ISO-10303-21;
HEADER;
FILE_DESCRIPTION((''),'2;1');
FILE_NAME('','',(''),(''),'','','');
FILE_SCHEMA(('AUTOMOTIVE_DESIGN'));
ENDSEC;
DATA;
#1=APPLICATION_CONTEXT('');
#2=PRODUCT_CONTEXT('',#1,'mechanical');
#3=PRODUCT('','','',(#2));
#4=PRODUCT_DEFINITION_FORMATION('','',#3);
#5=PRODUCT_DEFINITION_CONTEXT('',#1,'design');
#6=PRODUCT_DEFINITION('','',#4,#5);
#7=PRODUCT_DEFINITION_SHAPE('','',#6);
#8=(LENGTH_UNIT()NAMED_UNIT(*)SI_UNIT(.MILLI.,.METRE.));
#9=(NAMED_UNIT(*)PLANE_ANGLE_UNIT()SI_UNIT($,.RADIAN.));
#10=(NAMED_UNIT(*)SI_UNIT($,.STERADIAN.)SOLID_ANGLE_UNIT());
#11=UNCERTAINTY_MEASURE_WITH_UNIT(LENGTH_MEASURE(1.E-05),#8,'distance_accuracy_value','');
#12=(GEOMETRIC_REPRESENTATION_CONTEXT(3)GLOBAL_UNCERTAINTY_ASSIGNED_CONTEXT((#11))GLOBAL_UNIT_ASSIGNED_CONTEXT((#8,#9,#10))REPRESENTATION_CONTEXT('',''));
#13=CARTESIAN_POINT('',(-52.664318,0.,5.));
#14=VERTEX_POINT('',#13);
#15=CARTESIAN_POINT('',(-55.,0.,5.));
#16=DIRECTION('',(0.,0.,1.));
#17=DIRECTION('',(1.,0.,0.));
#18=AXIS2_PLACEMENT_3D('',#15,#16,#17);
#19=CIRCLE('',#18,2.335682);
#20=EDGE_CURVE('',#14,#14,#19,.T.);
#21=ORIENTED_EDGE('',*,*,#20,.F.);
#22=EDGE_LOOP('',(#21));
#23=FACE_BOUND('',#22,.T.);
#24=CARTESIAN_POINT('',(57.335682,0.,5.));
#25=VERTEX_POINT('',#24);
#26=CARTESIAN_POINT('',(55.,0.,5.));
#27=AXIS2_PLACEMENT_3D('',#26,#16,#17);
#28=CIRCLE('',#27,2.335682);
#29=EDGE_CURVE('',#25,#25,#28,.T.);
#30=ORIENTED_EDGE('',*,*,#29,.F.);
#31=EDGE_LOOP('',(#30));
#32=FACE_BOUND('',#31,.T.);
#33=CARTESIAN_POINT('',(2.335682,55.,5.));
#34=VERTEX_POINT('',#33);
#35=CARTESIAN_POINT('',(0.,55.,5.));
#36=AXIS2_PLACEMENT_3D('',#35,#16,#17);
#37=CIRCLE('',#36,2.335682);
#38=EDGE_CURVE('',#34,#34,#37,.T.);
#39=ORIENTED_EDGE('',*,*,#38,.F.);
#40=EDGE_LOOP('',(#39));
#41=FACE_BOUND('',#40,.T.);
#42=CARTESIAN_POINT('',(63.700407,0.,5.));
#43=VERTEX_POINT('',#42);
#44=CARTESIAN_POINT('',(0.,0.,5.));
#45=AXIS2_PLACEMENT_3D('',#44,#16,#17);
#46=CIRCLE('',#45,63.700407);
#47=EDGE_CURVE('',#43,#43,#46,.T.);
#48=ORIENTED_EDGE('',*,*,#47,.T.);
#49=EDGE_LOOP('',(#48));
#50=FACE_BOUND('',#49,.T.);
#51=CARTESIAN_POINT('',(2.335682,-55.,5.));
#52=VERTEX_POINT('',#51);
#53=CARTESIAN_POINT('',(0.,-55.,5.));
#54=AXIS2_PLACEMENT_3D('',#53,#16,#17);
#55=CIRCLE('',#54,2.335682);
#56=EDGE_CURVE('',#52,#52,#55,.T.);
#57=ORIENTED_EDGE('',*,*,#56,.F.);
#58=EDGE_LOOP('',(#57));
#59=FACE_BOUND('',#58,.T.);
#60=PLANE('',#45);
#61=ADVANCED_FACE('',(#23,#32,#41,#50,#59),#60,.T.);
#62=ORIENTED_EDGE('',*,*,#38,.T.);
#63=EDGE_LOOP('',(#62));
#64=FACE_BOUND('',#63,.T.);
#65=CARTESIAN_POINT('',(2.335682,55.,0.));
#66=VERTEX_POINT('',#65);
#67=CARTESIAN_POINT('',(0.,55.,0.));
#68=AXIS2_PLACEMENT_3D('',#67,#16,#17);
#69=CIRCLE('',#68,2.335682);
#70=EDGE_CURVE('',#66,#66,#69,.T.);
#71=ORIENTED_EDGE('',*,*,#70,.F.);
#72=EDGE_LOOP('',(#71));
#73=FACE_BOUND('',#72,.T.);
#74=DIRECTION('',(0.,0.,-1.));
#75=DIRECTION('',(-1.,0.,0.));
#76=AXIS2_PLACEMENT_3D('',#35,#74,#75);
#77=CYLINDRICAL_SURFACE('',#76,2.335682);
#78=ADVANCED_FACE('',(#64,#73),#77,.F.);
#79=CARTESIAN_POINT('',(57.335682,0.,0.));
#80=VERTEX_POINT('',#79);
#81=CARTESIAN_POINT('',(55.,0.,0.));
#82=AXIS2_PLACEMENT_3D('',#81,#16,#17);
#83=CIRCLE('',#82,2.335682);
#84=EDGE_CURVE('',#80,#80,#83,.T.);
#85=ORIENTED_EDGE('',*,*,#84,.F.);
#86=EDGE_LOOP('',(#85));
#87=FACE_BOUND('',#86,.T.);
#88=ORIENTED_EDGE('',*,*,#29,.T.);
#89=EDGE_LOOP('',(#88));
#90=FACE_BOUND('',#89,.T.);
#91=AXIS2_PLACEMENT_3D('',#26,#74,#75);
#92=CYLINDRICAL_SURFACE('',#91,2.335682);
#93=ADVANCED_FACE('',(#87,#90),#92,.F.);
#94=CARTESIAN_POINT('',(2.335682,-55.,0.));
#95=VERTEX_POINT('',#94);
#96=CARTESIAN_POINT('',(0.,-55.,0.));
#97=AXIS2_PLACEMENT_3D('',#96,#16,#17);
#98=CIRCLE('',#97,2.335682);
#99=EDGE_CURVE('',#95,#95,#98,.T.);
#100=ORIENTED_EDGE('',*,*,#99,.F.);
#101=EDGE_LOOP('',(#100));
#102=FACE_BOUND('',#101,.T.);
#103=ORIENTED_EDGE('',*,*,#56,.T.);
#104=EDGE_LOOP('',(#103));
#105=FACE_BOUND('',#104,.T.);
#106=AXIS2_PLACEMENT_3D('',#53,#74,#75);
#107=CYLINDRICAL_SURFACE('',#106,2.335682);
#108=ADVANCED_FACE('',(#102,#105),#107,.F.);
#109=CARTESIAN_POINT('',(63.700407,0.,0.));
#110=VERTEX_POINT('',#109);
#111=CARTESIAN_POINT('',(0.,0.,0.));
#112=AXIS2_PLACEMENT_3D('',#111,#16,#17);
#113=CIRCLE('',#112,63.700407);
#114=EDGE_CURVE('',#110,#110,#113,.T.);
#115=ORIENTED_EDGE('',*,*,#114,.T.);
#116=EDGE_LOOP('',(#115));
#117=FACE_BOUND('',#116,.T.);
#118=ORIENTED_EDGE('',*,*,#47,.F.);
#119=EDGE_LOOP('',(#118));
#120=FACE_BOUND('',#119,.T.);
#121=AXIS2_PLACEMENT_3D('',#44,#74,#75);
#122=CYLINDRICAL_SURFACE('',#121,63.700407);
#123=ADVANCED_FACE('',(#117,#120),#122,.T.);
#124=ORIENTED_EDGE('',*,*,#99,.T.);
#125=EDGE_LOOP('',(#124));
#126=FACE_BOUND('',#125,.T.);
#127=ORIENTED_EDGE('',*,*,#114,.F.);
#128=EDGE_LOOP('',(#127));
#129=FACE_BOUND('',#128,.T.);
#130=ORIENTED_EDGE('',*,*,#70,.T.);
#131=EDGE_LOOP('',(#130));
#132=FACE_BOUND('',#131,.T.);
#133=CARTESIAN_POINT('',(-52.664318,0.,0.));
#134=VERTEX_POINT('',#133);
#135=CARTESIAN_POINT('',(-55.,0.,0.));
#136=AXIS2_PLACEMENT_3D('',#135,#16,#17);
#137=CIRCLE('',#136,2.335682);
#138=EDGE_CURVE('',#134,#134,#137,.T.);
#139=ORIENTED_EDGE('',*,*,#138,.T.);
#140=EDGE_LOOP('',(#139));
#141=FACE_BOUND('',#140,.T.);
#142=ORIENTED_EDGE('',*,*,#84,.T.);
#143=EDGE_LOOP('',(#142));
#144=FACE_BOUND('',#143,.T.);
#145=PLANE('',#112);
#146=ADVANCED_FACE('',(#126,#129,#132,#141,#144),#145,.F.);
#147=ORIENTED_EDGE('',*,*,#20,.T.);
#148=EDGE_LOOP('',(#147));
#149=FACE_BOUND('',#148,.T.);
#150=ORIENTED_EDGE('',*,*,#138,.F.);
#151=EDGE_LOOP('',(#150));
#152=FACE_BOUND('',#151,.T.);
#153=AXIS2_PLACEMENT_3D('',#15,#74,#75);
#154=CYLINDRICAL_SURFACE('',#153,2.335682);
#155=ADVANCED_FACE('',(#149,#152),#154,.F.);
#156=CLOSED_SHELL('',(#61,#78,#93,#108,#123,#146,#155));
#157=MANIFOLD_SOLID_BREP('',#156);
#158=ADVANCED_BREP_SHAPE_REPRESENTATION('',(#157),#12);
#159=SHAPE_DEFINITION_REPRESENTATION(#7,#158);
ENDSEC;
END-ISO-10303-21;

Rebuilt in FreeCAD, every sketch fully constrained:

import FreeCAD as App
import Part
import Sketcher
from FreeCAD import Vector
Q = App.Units.Quantity

doc = App.newDocument("Part")
params = doc.addObject("Spreadsheet::Sheet", "Params")
for row, (alias, value) in enumerate([
    ("pad1_length", "5 mm"),
], start=1):
    params.set(f"A{row}", alias)
    params.set(f"B{row}", "=" + value)
    params.setAlias(f"B{row}", alias)

body = doc.addObject("PartDesign::Body", "Body")

# Sketch on XY plane
sketch1 = body.newObject("Sketcher::SketchObject", "Sketch")
sketch1.AttachmentSupport = (doc.getObject("XY_Plane"), [""])
sketch1.MapMode = "FlatFace"
sketch1.addGeometry([
    Part.Circle(Vector(0, 0, 0), Vector(0, 0, 1), 63.7),  # 0
    Part.Circle(Vector(0, -55, 0), Vector(0, 0, 1), 2.3),  # 1
    Part.Circle(Vector(-55, 0, 0), Vector(0, 0, 1), 2.3),  # 2
    Part.Circle(Vector(55, 0, 0), Vector(0, 0, 1), 2.3),  # 3
    Part.Circle(Vector(0, 55, 0), Vector(0, 0, 1), 2.3),  # 4
], False)
sketch1.addConstraint([
    Sketcher.Constraint("Coincident", 0, 3, -1, 1),
    Sketcher.Constraint("Equal", 1, 2),
    Sketcher.Constraint("Equal", 2, 3),
    Sketcher.Constraint("Equal", 3, 4),
    Sketcher.Constraint("Symmetric", 2, 3, 3, 3, -1, 1),
    Sketcher.Constraint("Symmetric", 1, 3, 4, 3, -1, 1),
    Sketcher.Constraint("PointOnObject", 1, 3, -2),
    Sketcher.Constraint("PointOnObject", 2, 3, -1),
    Sketcher.Constraint("DistanceY", 1, 3, -1, 1, Q("55 mm")),
    Sketcher.Constraint("DistanceX", 2, 3, -1, 1, Q("55 mm")),
    Sketcher.Constraint("Diameter", 0, Q("127.400813 mm")),
    Sketcher.Constraint("Diameter", 1, Q("4.671363 mm")),
])
pad1 = body.newObject("PartDesign::Pad", "Pad")
pad1.Profile = sketch1
pad1.setExpression("Length", "Params.pad1_length")

doc.recompute()
